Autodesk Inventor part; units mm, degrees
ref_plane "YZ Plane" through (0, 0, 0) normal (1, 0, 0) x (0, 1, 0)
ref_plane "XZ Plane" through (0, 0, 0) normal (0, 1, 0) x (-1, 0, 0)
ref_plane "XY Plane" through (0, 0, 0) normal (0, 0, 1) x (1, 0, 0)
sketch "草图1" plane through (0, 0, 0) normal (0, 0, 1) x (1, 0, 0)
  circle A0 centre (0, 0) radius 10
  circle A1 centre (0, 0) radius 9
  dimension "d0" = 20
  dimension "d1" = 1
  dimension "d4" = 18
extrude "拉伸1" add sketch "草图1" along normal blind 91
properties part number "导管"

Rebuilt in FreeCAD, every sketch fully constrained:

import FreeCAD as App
import Part
import Sketcher
from FreeCAD import Vector
Q = App.Units.Quantity

doc = App.newDocument("Part")
body = doc.addObject("PartDesign::Body", "Body")

sketch1 = body.newObject("Sketcher::SketchObject", "Sketch")
sketch1.AttachmentSupport = (doc.getObject("XY_Plane"), [""])
sketch1.MapMode = "FlatFace"
sketch1.addGeometry([
    Part.Circle(Vector(0, 0, 0), Vector(0, 0, 1), 10),
    Part.Circle(Vector(0, 0, 0), Vector(0, 0, 1), 9),
], False)
sketch1.addConstraint([
    Sketcher.Constraint("Coincident", 0, 3, -1, 1),
    Sketcher.Constraint("Coincident", 1, 3, -1, 1),
    Sketcher.Constraint("Diameter", 0, Q("20 mm")),
    Sketcher.Constraint("Diameter", 1, Q("18 mm")),
])
pad1 = body.newObject("PartDesign::Pad", "Pad")
pad1.Profile = sketch1
pad1.Length = 91

doc.recompute()
